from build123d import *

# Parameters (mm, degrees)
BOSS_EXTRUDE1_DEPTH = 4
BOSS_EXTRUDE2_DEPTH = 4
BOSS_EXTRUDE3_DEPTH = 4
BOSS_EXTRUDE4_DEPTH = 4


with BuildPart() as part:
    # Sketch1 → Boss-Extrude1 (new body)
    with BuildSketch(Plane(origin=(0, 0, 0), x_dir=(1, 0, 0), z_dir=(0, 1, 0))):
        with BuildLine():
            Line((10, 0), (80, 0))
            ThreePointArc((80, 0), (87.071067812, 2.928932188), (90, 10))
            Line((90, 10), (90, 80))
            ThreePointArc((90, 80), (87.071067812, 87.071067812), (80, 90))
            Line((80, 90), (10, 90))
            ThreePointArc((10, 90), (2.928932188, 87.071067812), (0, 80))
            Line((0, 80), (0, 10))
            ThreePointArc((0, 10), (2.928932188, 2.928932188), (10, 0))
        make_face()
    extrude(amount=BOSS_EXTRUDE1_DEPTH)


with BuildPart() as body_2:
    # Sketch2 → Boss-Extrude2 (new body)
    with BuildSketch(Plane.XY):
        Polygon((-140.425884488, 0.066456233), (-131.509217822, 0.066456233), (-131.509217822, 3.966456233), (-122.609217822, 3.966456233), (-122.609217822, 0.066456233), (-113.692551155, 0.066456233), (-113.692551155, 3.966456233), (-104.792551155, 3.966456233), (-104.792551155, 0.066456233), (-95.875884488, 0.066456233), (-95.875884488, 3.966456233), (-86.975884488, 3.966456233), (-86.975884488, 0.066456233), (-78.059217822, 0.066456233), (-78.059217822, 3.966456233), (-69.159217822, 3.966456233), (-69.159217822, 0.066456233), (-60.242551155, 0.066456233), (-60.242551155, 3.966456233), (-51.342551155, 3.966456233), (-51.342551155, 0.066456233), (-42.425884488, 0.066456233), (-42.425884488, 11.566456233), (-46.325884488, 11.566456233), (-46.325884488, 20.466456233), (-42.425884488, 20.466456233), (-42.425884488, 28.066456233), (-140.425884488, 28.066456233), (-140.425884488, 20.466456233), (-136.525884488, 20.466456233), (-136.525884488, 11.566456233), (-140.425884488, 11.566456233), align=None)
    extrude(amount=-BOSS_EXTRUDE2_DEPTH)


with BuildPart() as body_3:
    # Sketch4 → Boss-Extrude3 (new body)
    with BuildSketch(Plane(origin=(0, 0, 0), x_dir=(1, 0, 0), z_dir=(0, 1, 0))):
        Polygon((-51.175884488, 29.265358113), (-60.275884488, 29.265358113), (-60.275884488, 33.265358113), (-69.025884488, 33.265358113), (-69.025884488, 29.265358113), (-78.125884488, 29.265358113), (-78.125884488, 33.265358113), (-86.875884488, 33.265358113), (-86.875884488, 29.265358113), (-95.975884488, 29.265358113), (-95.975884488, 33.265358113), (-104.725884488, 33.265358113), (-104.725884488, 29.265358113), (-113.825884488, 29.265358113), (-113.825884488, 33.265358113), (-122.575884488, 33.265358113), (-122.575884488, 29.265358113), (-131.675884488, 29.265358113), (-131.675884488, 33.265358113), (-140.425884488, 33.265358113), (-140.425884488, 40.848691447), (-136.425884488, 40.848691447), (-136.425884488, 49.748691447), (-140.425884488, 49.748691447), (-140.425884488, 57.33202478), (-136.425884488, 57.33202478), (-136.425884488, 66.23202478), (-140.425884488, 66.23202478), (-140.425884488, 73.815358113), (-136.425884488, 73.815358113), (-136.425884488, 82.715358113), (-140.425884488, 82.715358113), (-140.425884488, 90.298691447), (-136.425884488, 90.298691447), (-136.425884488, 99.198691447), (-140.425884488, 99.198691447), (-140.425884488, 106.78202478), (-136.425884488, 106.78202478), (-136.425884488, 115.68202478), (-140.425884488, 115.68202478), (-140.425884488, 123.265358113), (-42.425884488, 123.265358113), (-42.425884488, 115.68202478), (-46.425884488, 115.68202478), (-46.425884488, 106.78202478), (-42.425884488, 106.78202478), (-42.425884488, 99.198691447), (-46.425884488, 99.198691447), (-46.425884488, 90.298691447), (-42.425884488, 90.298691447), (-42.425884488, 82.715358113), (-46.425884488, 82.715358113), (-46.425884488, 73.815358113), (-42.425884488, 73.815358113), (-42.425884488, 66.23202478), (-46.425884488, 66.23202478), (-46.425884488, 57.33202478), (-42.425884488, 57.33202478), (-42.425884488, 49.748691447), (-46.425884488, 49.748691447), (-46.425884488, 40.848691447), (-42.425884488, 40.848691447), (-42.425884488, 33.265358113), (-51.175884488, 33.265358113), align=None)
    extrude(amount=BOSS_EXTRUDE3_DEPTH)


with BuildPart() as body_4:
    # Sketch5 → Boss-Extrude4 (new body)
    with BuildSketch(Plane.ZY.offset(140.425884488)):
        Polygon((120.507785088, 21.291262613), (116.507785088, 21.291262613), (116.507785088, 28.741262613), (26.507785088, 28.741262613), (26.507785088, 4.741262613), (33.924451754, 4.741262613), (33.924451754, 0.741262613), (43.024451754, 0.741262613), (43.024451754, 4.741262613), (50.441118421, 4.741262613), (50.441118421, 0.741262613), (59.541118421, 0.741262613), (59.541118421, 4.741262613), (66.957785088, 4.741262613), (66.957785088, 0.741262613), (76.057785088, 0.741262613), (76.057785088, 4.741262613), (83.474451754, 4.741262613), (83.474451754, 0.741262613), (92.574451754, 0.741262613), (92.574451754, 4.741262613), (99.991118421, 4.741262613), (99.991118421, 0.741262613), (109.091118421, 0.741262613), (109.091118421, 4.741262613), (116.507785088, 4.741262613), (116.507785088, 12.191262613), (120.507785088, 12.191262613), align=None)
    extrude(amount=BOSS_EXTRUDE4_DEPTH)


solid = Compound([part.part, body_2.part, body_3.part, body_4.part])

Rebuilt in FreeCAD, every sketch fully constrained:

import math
import FreeCAD as App
import Part
import Sketcher

V = App.Vector


def add_polygon(sketch, points):
    """Adds a closed chain of lines whose ends are joined by coincident constraints."""
    first, n = sketch.GeometryCount, len(points)
    for a, b in zip(points, points[1:] + points[:1]):
        sketch.addGeometry(Part.LineSegment(App.Vector(*a, 0), App.Vector(*b, 0)), False)
    for i in range(n):
        sketch.addConstraint(Sketcher.Constraint("Coincident", first + i, 2, first + (i + 1) % n, 1))

doc = App.newDocument("Part")
body = doc.addObject("PartDesign::Body", "Body")

sketch1 = body.newObject("Sketcher::SketchObject", "Sketch")
sketch1.AttachmentSupport = (doc.getObject("XZ_Plane"), [""])
sketch1.MapMode = "FlatFace"
sketch1.addGeometry([
    Part.LineSegment(V(10, 0, 0), V(80, 0, 0)),
    Part.ArcOfCircle(Part.Circle(V(80, -10, 0), V(0, 0, 1), 10), math.radians(0), math.radians(90)),
    Part.LineSegment(V(90, -10, 0), V(90, -80, 0)),
    Part.ArcOfCircle(Part.Circle(V(80, -80, 0), V(0, 0, 1), 10), math.radians(-90), math.radians(0)),
    Part.LineSegment(V(80, -90, 0), V(10, -90, 0)),
    Part.ArcOfCircle(Part.Circle(V(10, -80, 0), V(0, 0, 1), 10), math.radians(180), math.radians(270)),
    Part.LineSegment(V(0, -80, 0), V(0, -10, 0)),
    Part.ArcOfCircle(Part.Circle(V(10, -10, 0), V(0, 0, 1), 10), math.radians(90), math.radians(180)),
], False)
sketch1.addConstraint([
    Sketcher.Constraint("Tangent", 0, 2, 1, 2),
    Sketcher.Constraint("Tangent", 1, 1, 2, 1),
    Sketcher.Constraint("Tangent", 2, 2, 3, 2),
    Sketcher.Constraint("Tangent", 3, 1, 4, 1),
    Sketcher.Constraint("Tangent", 4, 2, 5, 2),
    Sketcher.Constraint("Tangent", 5, 1, 6, 1),
    Sketcher.Constraint("Tangent", 6, 2, 7, 2),
    Sketcher.Constraint("Tangent", 7, 1, 0, 1),
    Sketcher.Constraint("Horizontal", 0),
    Sketcher.Constraint("Vertical", 2),
    Sketcher.Constraint("Horizontal", 4),
    Sketcher.Constraint("Vertical", 6),
    Sketcher.Constraint("Equal", 1, 3),
    Sketcher.Constraint("Equal", 3, 5),
    Sketcher.Constraint("Equal", 5, 7),
    Sketcher.Constraint("PointOnObject", 0, 2, -1),
    Sketcher.Constraint("PointOnObject", 5, 1, -2),
    Sketcher.Constraint("Equal", 4, 2),
    Sketcher.Constraint("Radius", 1, 10.0),
    Sketcher.Constraint("DistanceX", 0, 1, 0, 2, 70.0),
])
pad1 = body.newObject("PartDesign::Pad", "Pad")
pad1.Profile = sketch1
pad1.Length = 4
pad1.Reversed = True
body2 = doc.addObject("PartDesign::Body", "Body001")

sketch2 = body2.newObject("Sketcher::SketchObject", "Sketch001")
sketch2.AttachmentSupport = (doc.getObject("XY_Plane001"), [""])
sketch2.MapMode = "FlatFace"
add_polygon(sketch2, [(-140.4, 0.1), (-131.5, 0.1), (-131.5, 4), (-122.6, 4), (-122.6, 0.1), (-113.7, 0.1), (-113.7, 4), (-104.8, 4), (-104.8, 0.1), (-95.9, 0.1), (-95.9, 4), (-87, 4), (-87, 0.1), (-78.1, 0.1), (-78.1, 4), (-69.2, 4), (-69.2, 0.1), (-60.2, 0.1), (-60.2, 4), (-51.3, 4), (-51.3, 0.1), (-42.4, 0.1), (-42.4, 11.6), (-46.3, 11.6), (-46.3, 20.5), (-42.4, 20.5), (-42.4, 28.1), (-140.4, 28.1), (-140.4, 20.5), (-136.5, 20.5), (-136.5, 11.6), (-140.4, 11.6)])
sketch2.addConstraint([
    Sketcher.Constraint("Horizontal", 0),
    Sketcher.Constraint("Vertical", 1),
    Sketcher.Constraint("Horizontal", 2),
    Sketcher.Constraint("Vertical", 3),
    Sketcher.Constraint("Horizontal", 4),
    Sketcher.Constraint("Vertical", 5),
    Sketcher.Constraint("Horizontal", 6),
    Sketcher.Constraint("Vertical", 7),
    Sketcher.Constraint("Horizontal", 8),
    Sketcher.Constraint("Vertical", 9),
    Sketcher.Constraint("Horizontal", 10),
    Sketcher.Constraint("Vertical", 11),
    Sketcher.Constraint("Horizontal", 12),
    Sketcher.Constraint("Vertical", 13),
    Sketcher.Constraint("Horizontal", 14),
    Sketcher.Constraint("Vertical", 15),
    Sketcher.Constraint("Horizontal", 16),
    Sketcher.Constraint("Vertical", 17),
    Sketcher.Constraint("Horizontal", 18),
    Sketcher.Constraint("Vertical", 19),
    Sketcher.Constraint("Horizontal", 20),
    Sketcher.Constraint("Vertical", 21),
    Sketcher.Constraint("Horizontal", 22),
    Sketcher.Constraint("Vertical", 23),
    Sketcher.Constraint("Horizontal", 24),
    Sketcher.Constraint("Vertical", 25),
    Sketcher.Constraint("Horizontal", 26),
    Sketcher.Constraint("Vertical", 27),
    Sketcher.Constraint("Horizontal", 28),
    Sketcher.Constraint("Vertical", 29),
    Sketcher.Constraint("Horizontal", 30),
    Sketcher.Constraint("Vertical", 31),
    Sketcher.Constraint("Horizontal", 0, 2, 3, 2),
    Sketcher.Constraint("Horizontal", 2, 2, 5, 2),
    Sketcher.Constraint("Horizontal", 4, 2, 7, 2),
    Sketcher.Constraint("Horizontal", 6, 2, 9, 2),
    Sketcher.Constraint("Horizontal", 8, 2, 11, 2),
    Sketcher.Constraint("Horizontal", 10, 2, 13, 2),
    Sketcher.Constraint("Horizontal", 12, 2, 15, 2),
    Sketcher.Constraint("Horizontal", 14, 2, 17, 2),
    Sketcher.Constraint("Horizontal", 16, 2, 19, 2),
    Sketcher.Constraint("Horizontal", 24, 2, 27, 2),
    Sketcher.Constraint("Horizontal", 22, 2, 29, 2),
    Sketcher.Constraint("Vertical", 21, 2, 24, 2),
    Sketcher.Constraint("Vertical", 27, 2, 30, 2),
    Sketcher.Constraint("Equal", 0, 4),
    Sketcher.Constraint("Equal", 2, 6),
    Sketcher.Constraint("Equal", 4, 8),
    Sketcher.Constraint("Equal", 6, 10),
    Sketcher.Constraint("Equal", 8, 12),
    Sketcher.Constraint("Equal", 10, 14),
    Sketcher.Constraint("Equal", 12, 16),
    Sketcher.Constraint("Equal", 14, 18),
    Sketcher.Constraint("Equal", 16, 20),
    Sketcher.Constraint("Equal", 24, 28),
    Sketcher.Constraint("Equal", 30, 1),
    Sketcher.Constraint("Equal", 18, 23),
    Sketcher.Constraint("DistanceX", 26, 2, 26, 1, 98.0),
    Sketcher.Constraint("DistanceX", 2, 1, 2, 2, 8.9),
    Sketcher.Constraint("DistanceX", 22, 2, 22, 1, 3.9),
    Sketcher.Constraint("DistanceY", 21, 1, 21, 2, 11.5),
    Sketcher.Constraint("DistanceY", 25, 1, 25, 2, 7.6),
    Sketcher.Constraint("DistanceX", 4, 2, -1, 1, 113.692551),
    Sketcher.Constraint("DistanceY", -1, 1, 0, 2, 0.066456),
])
pad2 = body2.newObject("PartDesign::Pad", "Pad001")
pad2.Profile = sketch2
pad2.Length = 4
pad2.Reversed = True
body3 = doc.addObject("PartDesign::Body", "Body002")

sketch3 = body3.newObject("Sketcher::SketchObject", "Sketch002")
sketch3.AttachmentSupport = (doc.getObject("XZ_Plane002"), [""])
sketch3.MapMode = "FlatFace"
add_polygon(sketch3, [(-60.3, -29.3), (-51.2, -29.3), (-51.2, -33.3), (-42.4, -33.3), (-42.4, -40.8), (-46.4, -40.8), (-46.4, -49.7), (-42.4, -49.7), (-42.4, -57.3), (-46.4, -57.3), (-46.4, -66.2), (-42.4, -66.2), (-42.4, -73.8), (-46.4, -73.8), (-46.4, -82.7), (-42.4, -82.7), (-42.4, -90.3), (-46.4, -90.3), (-46.4, -99.2), (-42.4, -99.2), (-42.4, -106.8), (-46.4, -106.8), (-46.4, -115.7), (-42.4, -115.7), (-42.4, -123.3), (-140.4, -123.3), (-140.4, -115.7), (-136.4, -115.7), (-136.4, -106.8), (-140.4, -106.8), (-140.4, -99.2), (-136.4, -99.2), (-136.4, -90.3), (-140.4, -90.3), (-140.4, -82.7), (-136.4, -82.7), (-136.4, -73.8), (-140.4, -73.8), (-140.4, -66.2), (-136.4, -66.2), (-136.4, -57.3), (-140.4, -57.3), (-140.4, -49.7), (-136.4, -49.7), (-136.4, -40.8), (-140.4, -40.8), (-140.4, -33.3), (-131.7, -33.3), (-131.7, -29.3), (-122.6, -29.3), (-122.6, -33.3), (-113.8, -33.3), (-113.8, -29.3), (-104.7, -29.3), (-104.7, -33.3), (-96, -33.3), (-96, -29.3), (-86.9, -29.3), (-86.9, -33.3), (-78.1, -33.3), (-78.1, -29.3), (-69, -29.3), (-69, -33.3), (-60.3, -33.3)])
sketch3.addConstraint([
    Sketcher.Constraint("Horizontal", 0),
    Sketcher.Constraint("Vertical", 1),
    Sketcher.Constraint("Horizontal", 2),
    Sketcher.Constraint("Vertical", 3),
    Sketcher.Constraint("Horizontal", 4),
    Sketcher.Constraint("Vertical", 5),
    Sketcher.Constraint("Horizontal", 6),
    Sketcher.Constraint("Vertical", 7),
    Sketcher.Constraint("Horizontal", 8),
    Sketcher.Constraint("Vertical", 9),
    Sketcher.Constraint("Horizontal", 10),
    Sketcher.Constraint("Vertical", 11),
    Sketcher.Constraint("Horizontal", 12),
    Sketcher.Constraint("Vertical", 13),
    Sketcher.Constraint("Horizontal", 14),
    Sketcher.Constraint("Vertical", 15),
    Sketcher.Constraint("Horizontal", 16),
    Sketcher.Constraint("Vertical", 17),
    Sketcher.Constraint("Horizontal", 18),
    Sketcher.Constraint("Vertical", 19),
    Sketcher.Constraint("Horizontal", 20),
    Sketcher.Constraint("Vertical", 21),
    Sketcher.Constraint("Horizontal", 22),
    Sketcher.Constraint("Vertical", 23),
    Sketcher.Constraint("Horizontal", 24),
    Sketcher.Constraint("Vertical", 25),
    Sketcher.Constraint("Horizontal", 26),
    Sketcher.Constraint("Vertical", 27),
    Sketcher.Constraint("Horizontal", 28),
    Sketcher.Constraint("Vertical", 29),
    Sketcher.Constraint("Horizontal", 30),
    Sketcher.Constraint("Vertical", 31),
    Sketcher.Constraint("Horizontal", 32),
    Sketcher.Constraint("Vertical", 33),
    Sketcher.Constraint("Horizontal", 34),
    Sketcher.Constraint("Vertical", 35),
    Sketcher.Constraint("Horizontal", 36),
    Sketcher.Constraint("Vertical", 37),
    Sketcher.Constraint("Horizontal", 38),
    Sketcher.Constraint("Vertical", 39),
    Sketcher.Constraint("Horizontal", 40),
    Sketcher.Constraint("Vertical", 41),
    Sketcher.Constraint("Horizontal", 42),
    Sketcher.Constraint("Vertical", 43),
    Sketcher.Constraint("Horizontal", 44),
    Sketcher.Constraint("Vertical", 45),
    Sketcher.Constraint("Horizontal", 46),
    Sketcher.Constraint("Vertical", 47),
    Sketcher.Constraint("Horizontal", 48),
    Sketcher.Constraint("Vertical", 49),
    Sketcher.Constraint("Horizontal", 50),
    Sketcher.Constraint("Vertical", 51),
    Sketcher.Constraint("Horizontal", 52),
    Sketcher.Constraint("Vertical", 53),
    Sketcher.Constraint("Horizontal", 54),
    Sketcher.Constraint("Vertical", 55),
    Sketcher.Constraint("Horizontal", 56),
    Sketcher.Constraint("Vertical", 57),
    Sketcher.Constraint("Horizontal", 58),
    Sketcher.Constraint("Vertical", 59),
    Sketcher.Constraint("Horizontal", 60),
    Sketcher.Constraint("Vertical", 61),
    Sketcher.Constraint("Horizontal", 62),
    Sketcher.Constraint("Vertical", 63),
    Sketcher.Constraint("Horizontal", 22, 2, 25, 2),
    Sketcher.Constraint("Horizontal", 20, 2, 27, 2),
    Sketcher.Constraint("Horizontal", 18, 2, 29, 2),
    Sketcher.Constraint("Horizontal", 16, 2, 31, 2),
    Sketcher.Constraint("Horizontal", 14, 2, 33, 2),
    Sketcher.Constraint("Horizontal", 12, 2, 35, 2),
    Sketcher.Constraint("Horizontal", 10, 2, 37, 2),
    Sketcher.Constraint("Horizontal", 8, 2, 39, 2),
    Sketcher.Constraint("Horizontal", 6, 2, 41, 2),
    Sketcher.Constraint("Horizontal", 4, 2, 43, 2),
    Sketcher.Constraint("Horizontal", 2, 2, 45, 2),
    Sketcher.Constraint("Horizontal", 0, 2, 47, 2),
    Sketcher.Constraint("Horizontal", 46, 2, 49, 2),
    Sketcher.Constraint("Horizontal", 48, 2, 51, 2),
    Sketcher.Constraint("Horizontal", 50, 2, 53, 2),
    Sketcher.Constraint("Horizontal", 52, 2, 55, 2),
    Sketcher.Constraint("Horizontal", 54, 2, 57, 2),
    Sketcher.Constraint("Horizontal", 56, 2, 59, 2),
    Sketcher.Constraint("Horizontal", 58, 2, 61, 2),
    Sketcher.Constraint("Vertical", 3, 2, 6, 2),
    Sketcher.Constraint("Vertical", 5, 2, 8, 2),
    Sketcher.Constraint("Vertical", 7, 2, 10, 2),
    Sketcher.Constraint("Vertical", 9, 2, 12, 2),
    Sketcher.Constraint("Vertical", 11, 2, 14, 2),
    Sketcher.Constraint("Vertical", 13, 2, 16, 2),
    Sketcher.Constraint("Vertical", 15, 2, 18, 2),
    Sketcher.Constraint("Vertical", 17, 2, 20, 2),
    Sketcher.Constraint("Vertical", 19, 2, 22, 2),
    Sketcher.Constraint("Vertical", 25, 2, 28, 2),
    Sketcher.Constraint("Vertical", 27, 2, 30, 2),
    Sketcher.Constraint("Vertical", 29, 2, 32, 2),
    Sketcher.Constraint("Vertical", 31, 2, 34, 2),
    Sketcher.Constraint("Vertical", 33, 2, 36, 2),
    Sketcher.Constraint("Vertical", 35, 2, 38, 2),
    Sketcher.Constraint("Vertical", 37, 2, 40, 2),
    Sketcher.Constraint("Vertical", 39, 2, 42, 2),
    Sketcher.Constraint("Vertical", 41, 2, 44, 2),
    Sketcher.Constraint("Equal", 22, 26),
    Sketcher.Constraint("Equal", 2, 46),
    Sketcher.Constraint("Equal", 0, 48),
    Sketcher.Constraint("Equal", 46, 50),
    Sketcher.Constraint("Equal", 48, 52),
    Sketcher.Constraint("Equal", 50, 54),
    Sketcher.Constraint("Equal", 52, 56),
    Sketcher.Constraint("Equal", 54, 58),
    Sketcher.Constraint("Equal", 56, 60),
    Sketcher.Constraint("Equal", 58, 62),
    Sketcher.Constraint("Equal", 44, 1),
    Sketcher.Constraint("Equal", 3, 7),
    Sketcher.Constraint("Equal", 5, 9),
    Sketcher.Constraint("Equal", 7, 11),
    Sketcher.Constraint("Equal", 9, 13),
    Sketcher.Constraint("Equal", 11, 15),
    Sketcher.Constraint("Equal", 13, 17),
    Sketcher.Constraint("Equal", 15, 19),
    Sketcher.Constraint("Equal", 17, 21),
    Sketcher.Constraint("Equal", 19, 23),
    Sketcher.Constraint("DistanceX", 4, 2, 4, 1, 4.0),
    Sketcher.Constraint("DistanceX", 24, 2, 24, 1, 98.0),
    Sketcher.Constraint("DistanceX", 0, 1, 0, 2, 9.1),
    Sketcher.Constraint("DistanceY", 5, 2, 5, 1, 8.9),
    Sketcher.Constraint("DistanceY", 3, 2, 3, 1, 7.583333),
    Sketcher.Constraint("DistanceY", 0, 2, -1, 1, 29.265358),
    Sketcher.Constraint("DistanceX", 0, 2, -1, 1, 51.175884),
])
pad3 = body3.newObject("PartDesign::Pad", "Pad002")
pad3.Profile = sketch3
pad3.Length = 4
pad3.Reversed = True
body4 = doc.addObject("PartDesign::Body", "Body003")

sketch4 = body4.newObject("Sketcher::SketchObject", "Sketch003")
sketch4.AttachmentSupport = (doc.getObject("YZ_Plane003"), [""])
sketch4.MapMode = "FlatFace"
sketch4.AttachmentOffset = App.Placement(V(0, 0, -140.425884), App.Rotation())
add_polygon(sketch4, [(21.3, 120.5), (21.3, 116.5), (28.7, 116.5), (28.7, 26.5), (4.7, 26.5), (4.7, 33.9), (0.7, 33.9), (0.7, 43), (4.7, 43), (4.7, 50.4), (0.7, 50.4), (0.7, 59.5), (4.7, 59.5), (4.7, 67), (0.7, 67), (0.7, 76.1), (4.7, 76.1), (4.7, 83.5), (0.7, 83.5), (0.7, 92.6), (4.7, 92.6), (4.7, 100), (0.7, 100), (0.7, 109.1), (4.7, 109.1), (4.7, 116.5), (12.2, 116.5), (12.2, 120.5)])
sketch4.addConstraint([
    Sketcher.Constraint("Vertical", 0),
    Sketcher.Constraint("Horizontal", 1),
    Sketcher.Constraint("Vertical", 2),
    Sketcher.Constraint("Horizontal", 3),
    Sketcher.Constraint("Vertical", 4),
    Sketcher.Constraint("Horizontal", 5),
    Sketcher.Constraint("Vertical", 6),
    Sketcher.Constraint("Horizontal", 7),
    Sketcher.Constraint("Vertical", 8),
    Sketcher.Constraint("Horizontal", 9),
    Sketcher.Constraint("Vertical", 10),
    Sketcher.Constraint("Horizontal", 11),
    Sketcher.Constraint("Vertical", 12),
    Sketcher.Constraint("Horizontal", 13),
    Sketcher.Constraint("Vertical", 14),
    Sketcher.Constraint("Horizontal", 15),
    Sketcher.Constraint("Vertical", 16),
    Sketcher.Constraint("Horizontal", 17),
    Sketcher.Constraint("Vertical", 18),
    Sketcher.Constraint("Horizontal", 19),
    Sketcher.Constraint("Vertical", 20),
    Sketcher.Constraint("Horizontal", 21),
    Sketcher.Constraint("Vertical", 22),
    Sketcher.Constraint("Horizontal", 23),
    Sketcher.Constraint("Vertical", 24),
    Sketcher.Constraint("Horizontal", 25),
    Sketcher.Constraint("Vertical", 26),
    Sketcher.Constraint("Horizontal", 27),
    Sketcher.Constraint("Horizontal", 1, 2, 24, 2),
    Sketcher.Constraint("Vertical", 4, 2, 7, 2),
    Sketcher.Constraint("Vertical", 6, 2, 9, 2),
    Sketcher.Constraint("Vertical", 8, 2, 11, 2),
    Sketcher.Constraint("Vertical", 10, 2, 13, 2),
    Sketcher.Constraint("Vertical", 12, 2, 15, 2),
    Sketcher.Constraint("Vertical", 14, 2, 17, 2),
    Sketcher.Constraint("Vertical", 16, 2, 19, 2),
    Sketcher.Constraint("Vertical", 18, 2, 21, 2),
    Sketcher.Constraint("Vertical", 20, 2, 23, 2),
    Sketcher.Constraint("Equal", 1, 25),
    Sketcher.Constraint("Equal", 23, 0),
    Sketcher.Constraint("Equal", 27, 6),
    Sketcher.Constraint("Equal", 4, 8),
    Sketcher.Constraint("Equal", 6, 10),
    Sketcher.Constraint("Equal", 8, 12),
    Sketcher.Constraint("Equal", 10, 14),
    Sketcher.Constraint("Equal", 12, 16),
    Sketcher.Constraint("Equal", 14, 18),
    Sketcher.Constraint("Equal", 16, 20),
    Sketcher.Constraint("Equal", 18, 22),
    Sketcher.Constraint("Equal", 20, 24),
    Sketcher.Constraint("DistanceX", 3, 2, 3, 1, 24.0),
    Sketcher.Constraint("DistanceX", 5, 2, 5, 1, 4.0),
    Sketcher.Constraint("DistanceY", 2, 2, 2, 1, 90.0),
    Sketcher.Constraint("DistanceX", 27, 1, 27, 2, 9.1),
    Sketcher.Constraint("DistanceY", -1, 1, 4, 2, 33.924452),
    Sketcher.Constraint("DistanceX", -1, 1, 0, 2, 21.291263),
])
pad4 = body4.newObject("PartDesign::Pad", "Pad003")
pad4.Profile = sketch4
pad4.Length = 4
pad4.Reversed = True

doc.recompute()
